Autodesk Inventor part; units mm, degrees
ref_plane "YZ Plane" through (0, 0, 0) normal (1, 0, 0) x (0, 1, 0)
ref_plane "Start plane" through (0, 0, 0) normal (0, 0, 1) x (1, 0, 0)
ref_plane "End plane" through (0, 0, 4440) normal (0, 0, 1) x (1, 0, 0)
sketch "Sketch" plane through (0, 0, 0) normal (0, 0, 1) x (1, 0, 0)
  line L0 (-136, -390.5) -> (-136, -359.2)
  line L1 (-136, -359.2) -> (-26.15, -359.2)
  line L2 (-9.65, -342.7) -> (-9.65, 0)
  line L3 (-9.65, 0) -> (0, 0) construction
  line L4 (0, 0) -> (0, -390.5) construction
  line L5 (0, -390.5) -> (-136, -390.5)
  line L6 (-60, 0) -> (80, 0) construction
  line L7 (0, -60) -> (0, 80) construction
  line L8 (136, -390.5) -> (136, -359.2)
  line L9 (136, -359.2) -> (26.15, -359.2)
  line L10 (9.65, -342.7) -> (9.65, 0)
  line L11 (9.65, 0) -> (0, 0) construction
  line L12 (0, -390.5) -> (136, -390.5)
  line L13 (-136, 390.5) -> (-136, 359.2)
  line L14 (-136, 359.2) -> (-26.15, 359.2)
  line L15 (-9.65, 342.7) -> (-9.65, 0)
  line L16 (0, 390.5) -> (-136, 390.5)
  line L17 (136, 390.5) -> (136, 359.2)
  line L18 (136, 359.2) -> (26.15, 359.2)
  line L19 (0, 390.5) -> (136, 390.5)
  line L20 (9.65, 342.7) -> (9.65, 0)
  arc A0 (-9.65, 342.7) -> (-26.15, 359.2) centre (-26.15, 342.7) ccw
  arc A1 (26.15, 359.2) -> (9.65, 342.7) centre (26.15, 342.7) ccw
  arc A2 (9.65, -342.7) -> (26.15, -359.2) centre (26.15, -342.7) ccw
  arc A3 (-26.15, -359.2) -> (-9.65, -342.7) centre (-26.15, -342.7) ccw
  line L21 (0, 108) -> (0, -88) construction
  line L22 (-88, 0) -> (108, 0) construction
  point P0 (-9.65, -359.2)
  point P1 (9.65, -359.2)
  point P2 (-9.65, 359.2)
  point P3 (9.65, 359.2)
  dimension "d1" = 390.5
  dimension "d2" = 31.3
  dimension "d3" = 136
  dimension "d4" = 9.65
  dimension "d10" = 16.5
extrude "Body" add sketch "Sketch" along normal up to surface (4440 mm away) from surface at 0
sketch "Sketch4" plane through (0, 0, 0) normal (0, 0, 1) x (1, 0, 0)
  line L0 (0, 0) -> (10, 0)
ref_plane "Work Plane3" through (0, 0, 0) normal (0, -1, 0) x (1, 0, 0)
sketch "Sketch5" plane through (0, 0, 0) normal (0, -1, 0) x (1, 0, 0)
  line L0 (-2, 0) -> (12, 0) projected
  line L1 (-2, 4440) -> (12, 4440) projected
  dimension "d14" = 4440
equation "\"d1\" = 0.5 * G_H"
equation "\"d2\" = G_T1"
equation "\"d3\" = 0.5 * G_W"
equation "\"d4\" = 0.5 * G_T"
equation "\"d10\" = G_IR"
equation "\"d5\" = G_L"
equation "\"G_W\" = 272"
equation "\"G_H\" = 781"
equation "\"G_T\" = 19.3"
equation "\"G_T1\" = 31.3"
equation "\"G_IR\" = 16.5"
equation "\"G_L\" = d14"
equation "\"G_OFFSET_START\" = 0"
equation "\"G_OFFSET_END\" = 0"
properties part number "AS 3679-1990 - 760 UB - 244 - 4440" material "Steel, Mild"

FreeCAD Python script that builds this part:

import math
import FreeCAD as App
import Part
import Sketcher
from FreeCAD import Vector

doc = App.newDocument("Part")
body = doc.addObject("PartDesign::Body", "Body")

# Sketch on XY plane
sketch1 = doc.addObject("Sketcher::SketchObject", "Sketch")
body.addObject(sketch1)
sketch1.AttachmentSupport = (doc.XY_Plane, [""])
sketch1.MapMode = "FlatFace"
sketch1.addGeometry(Part.LineSegment(Vector(-136, -359, 0), Vector(-136, -390, 0)), False)
sketch1.addGeometry(Part.LineSegment(Vector(-136, -390, 0), Vector(136, -390, 0)), False)
sketch1.addGeometry(Part.LineSegment(Vector(136, -390, 0), Vector(136, -359, 0)), False)
sketch1.addGeometry(Part.LineSegment(Vector(136, -359, 0), Vector(26, -359, 0)), False)
sketch1.addGeometry(Part.ArcOfCircle(Part.Circle(Vector(26, -343, 0), Vector(0, 0, 1), 16), math.radians(180), math.radians(270)), False)
sketch1.addGeometry(Part.LineSegment(Vector(10, -343, 0), Vector(10, 343, 0)), False)
sketch1.addGeometry(Part.ArcOfCircle(Part.Circle(Vector(26, 343, 0), Vector(0, 0, 1), 16), math.radians(90), math.radians(180)), False)
sketch1.addGeometry(Part.LineSegment(Vector(26, 359, 0), Vector(136, 359, 0)), False)
sketch1.addGeometry(Part.LineSegment(Vector(136, 359, 0), Vector(136, 390, 0)), False)
sketch1.addGeometry(Part.LineSegment(Vector(136, 390, 0), Vector(-136, 390, 0)), False)
sketch1.addGeometry(Part.LineSegment(Vector(-136, 390, 0), Vector(-136, 359, 0)), False)
sketch1.addGeometry(Part.LineSegment(Vector(-136, 359, 0), Vector(-26, 359, 0)), False)
sketch1.addGeometry(Part.ArcOfCircle(Part.Circle(Vector(-26, 343, 0), Vector(0, 0, 1), 16), math.radians(0), math.radians(90)), False)
sketch1.addGeometry(Part.LineSegment(Vector(-10, 343, 0), Vector(-10, -343, 0)), False)
sketch1.addGeometry(Part.ArcOfCircle(Part.Circle(Vector(-26, -343, 0), Vector(0, 0, 1), 16), math.radians(-90), math.radians(0)), False)
sketch1.addGeometry(Part.LineSegment(Vector(-26, -359, 0), Vector(-136, -359, 0)), False)
sketch1.addConstraint(Sketcher.Constraint("Coincident", 0, 2, 1, 1))
sketch1.addConstraint(Sketcher.Constraint("Coincident", 1, 2, 2, 1))
sketch1.addConstraint(Sketcher.Constraint("Coincident", 2, 2, 3, 1))
sketch1.addConstraint(Sketcher.Constraint("Tangent", 3, 2, 4, 2))
sketch1.addConstraint(Sketcher.Constraint("Tangent", 4, 1, 5, 1))
sketch1.addConstraint(Sketcher.Constraint("Tangent", 5, 2, 6, 2))
sketch1.addConstraint(Sketcher.Constraint("Tangent", 6, 1, 7, 1))
sketch1.addConstraint(Sketcher.Constraint("Coincident", 7, 2, 8, 1))
sketch1.addConstraint(Sketcher.Constraint("Coincident", 8, 2, 9, 1))
sketch1.addConstraint(Sketcher.Constraint("Coincident", 9, 2, 10, 1))
sketch1.addConstraint(Sketcher.Constraint("Coincident", 10, 2, 11, 1))
sketch1.addConstraint(Sketcher.Constraint("Tangent", 11, 2, 12, 2))
sketch1.addConstraint(Sketcher.Constraint("Tangent", 12, 1, 13, 1))
sketch1.addConstraint(Sketcher.Constraint("Tangent", 13, 2, 14, 2))
sketch1.addConstraint(Sketcher.Constraint("Tangent", 14, 1, 15, 1))
sketch1.addConstraint(Sketcher.Constraint("Coincident", 15, 2, 0, 1))
sketch1.addConstraint(Sketcher.Constraint("Vertical", 0))
sketch1.addConstraint(Sketcher.Constraint("Horizontal", 1))
sketch1.addConstraint(Sketcher.Constraint("Vertical", 2))
sketch1.addConstraint(Sketcher.Constraint("Horizontal", 3))
sketch1.addConstraint(Sketcher.Constraint("Vertical", 5))
sketch1.addConstraint(Sketcher.Constraint("Horizontal", 7))
sketch1.addConstraint(Sketcher.Constraint("Vertical", 8))
sketch1.addConstraint(Sketcher.Constraint("Horizontal", 9))
sketch1.addConstraint(Sketcher.Constraint("Vertical", 10))
sketch1.addConstraint(Sketcher.Constraint("Horizontal", 11))
sketch1.addConstraint(Sketcher.Constraint("Vertical", 13))
sketch1.addConstraint(Sketcher.Constraint("Horizontal", 15))
sketch1.addConstraint(Sketcher.Constraint("Equal", 4, 6))
sketch1.addConstraint(Sketcher.Constraint("Equal", 6, 12))
sketch1.addConstraint(Sketcher.Constraint("Equal", 12, 14))
sketch1.addConstraint(Sketcher.Constraint("Symmetric", 4, 3, 12, 3, -1, 1))
sketch1.addConstraint(Sketcher.Constraint("Symmetric", 0, 2, 8, 2, -1, 1))
sketch1.addConstraint(Sketcher.Constraint("Symmetric", 7, 2, 10, 2, -2))
sketch1.addConstraint(Sketcher.Constraint("Symmetric", 2, 2, 15, 2, -2))
sketch1.addConstraint(Sketcher.Constraint("Radius", 4, 16.5))
sketch1.addConstraint(Sketcher.Constraint("DistanceY", 0, 2, 0, 1, 31.3))
sketch1.addConstraint(Sketcher.Constraint("DistanceX", 0, 2, -1, 1, 136.0))
sketch1.addConstraint(Sketcher.Constraint("DistanceY", 0, 2, -1, 1, 390.5))
sketch1.addConstraint(Sketcher.Constraint("DistanceX", -1, 1, 4, 1, 9.65))
pad1 = doc.addObject("PartDesign::Pad", "Pad")
body.addObject(pad1)
pad1.Profile = sketch1
pad1.Length = 4440

doc.recompute()
